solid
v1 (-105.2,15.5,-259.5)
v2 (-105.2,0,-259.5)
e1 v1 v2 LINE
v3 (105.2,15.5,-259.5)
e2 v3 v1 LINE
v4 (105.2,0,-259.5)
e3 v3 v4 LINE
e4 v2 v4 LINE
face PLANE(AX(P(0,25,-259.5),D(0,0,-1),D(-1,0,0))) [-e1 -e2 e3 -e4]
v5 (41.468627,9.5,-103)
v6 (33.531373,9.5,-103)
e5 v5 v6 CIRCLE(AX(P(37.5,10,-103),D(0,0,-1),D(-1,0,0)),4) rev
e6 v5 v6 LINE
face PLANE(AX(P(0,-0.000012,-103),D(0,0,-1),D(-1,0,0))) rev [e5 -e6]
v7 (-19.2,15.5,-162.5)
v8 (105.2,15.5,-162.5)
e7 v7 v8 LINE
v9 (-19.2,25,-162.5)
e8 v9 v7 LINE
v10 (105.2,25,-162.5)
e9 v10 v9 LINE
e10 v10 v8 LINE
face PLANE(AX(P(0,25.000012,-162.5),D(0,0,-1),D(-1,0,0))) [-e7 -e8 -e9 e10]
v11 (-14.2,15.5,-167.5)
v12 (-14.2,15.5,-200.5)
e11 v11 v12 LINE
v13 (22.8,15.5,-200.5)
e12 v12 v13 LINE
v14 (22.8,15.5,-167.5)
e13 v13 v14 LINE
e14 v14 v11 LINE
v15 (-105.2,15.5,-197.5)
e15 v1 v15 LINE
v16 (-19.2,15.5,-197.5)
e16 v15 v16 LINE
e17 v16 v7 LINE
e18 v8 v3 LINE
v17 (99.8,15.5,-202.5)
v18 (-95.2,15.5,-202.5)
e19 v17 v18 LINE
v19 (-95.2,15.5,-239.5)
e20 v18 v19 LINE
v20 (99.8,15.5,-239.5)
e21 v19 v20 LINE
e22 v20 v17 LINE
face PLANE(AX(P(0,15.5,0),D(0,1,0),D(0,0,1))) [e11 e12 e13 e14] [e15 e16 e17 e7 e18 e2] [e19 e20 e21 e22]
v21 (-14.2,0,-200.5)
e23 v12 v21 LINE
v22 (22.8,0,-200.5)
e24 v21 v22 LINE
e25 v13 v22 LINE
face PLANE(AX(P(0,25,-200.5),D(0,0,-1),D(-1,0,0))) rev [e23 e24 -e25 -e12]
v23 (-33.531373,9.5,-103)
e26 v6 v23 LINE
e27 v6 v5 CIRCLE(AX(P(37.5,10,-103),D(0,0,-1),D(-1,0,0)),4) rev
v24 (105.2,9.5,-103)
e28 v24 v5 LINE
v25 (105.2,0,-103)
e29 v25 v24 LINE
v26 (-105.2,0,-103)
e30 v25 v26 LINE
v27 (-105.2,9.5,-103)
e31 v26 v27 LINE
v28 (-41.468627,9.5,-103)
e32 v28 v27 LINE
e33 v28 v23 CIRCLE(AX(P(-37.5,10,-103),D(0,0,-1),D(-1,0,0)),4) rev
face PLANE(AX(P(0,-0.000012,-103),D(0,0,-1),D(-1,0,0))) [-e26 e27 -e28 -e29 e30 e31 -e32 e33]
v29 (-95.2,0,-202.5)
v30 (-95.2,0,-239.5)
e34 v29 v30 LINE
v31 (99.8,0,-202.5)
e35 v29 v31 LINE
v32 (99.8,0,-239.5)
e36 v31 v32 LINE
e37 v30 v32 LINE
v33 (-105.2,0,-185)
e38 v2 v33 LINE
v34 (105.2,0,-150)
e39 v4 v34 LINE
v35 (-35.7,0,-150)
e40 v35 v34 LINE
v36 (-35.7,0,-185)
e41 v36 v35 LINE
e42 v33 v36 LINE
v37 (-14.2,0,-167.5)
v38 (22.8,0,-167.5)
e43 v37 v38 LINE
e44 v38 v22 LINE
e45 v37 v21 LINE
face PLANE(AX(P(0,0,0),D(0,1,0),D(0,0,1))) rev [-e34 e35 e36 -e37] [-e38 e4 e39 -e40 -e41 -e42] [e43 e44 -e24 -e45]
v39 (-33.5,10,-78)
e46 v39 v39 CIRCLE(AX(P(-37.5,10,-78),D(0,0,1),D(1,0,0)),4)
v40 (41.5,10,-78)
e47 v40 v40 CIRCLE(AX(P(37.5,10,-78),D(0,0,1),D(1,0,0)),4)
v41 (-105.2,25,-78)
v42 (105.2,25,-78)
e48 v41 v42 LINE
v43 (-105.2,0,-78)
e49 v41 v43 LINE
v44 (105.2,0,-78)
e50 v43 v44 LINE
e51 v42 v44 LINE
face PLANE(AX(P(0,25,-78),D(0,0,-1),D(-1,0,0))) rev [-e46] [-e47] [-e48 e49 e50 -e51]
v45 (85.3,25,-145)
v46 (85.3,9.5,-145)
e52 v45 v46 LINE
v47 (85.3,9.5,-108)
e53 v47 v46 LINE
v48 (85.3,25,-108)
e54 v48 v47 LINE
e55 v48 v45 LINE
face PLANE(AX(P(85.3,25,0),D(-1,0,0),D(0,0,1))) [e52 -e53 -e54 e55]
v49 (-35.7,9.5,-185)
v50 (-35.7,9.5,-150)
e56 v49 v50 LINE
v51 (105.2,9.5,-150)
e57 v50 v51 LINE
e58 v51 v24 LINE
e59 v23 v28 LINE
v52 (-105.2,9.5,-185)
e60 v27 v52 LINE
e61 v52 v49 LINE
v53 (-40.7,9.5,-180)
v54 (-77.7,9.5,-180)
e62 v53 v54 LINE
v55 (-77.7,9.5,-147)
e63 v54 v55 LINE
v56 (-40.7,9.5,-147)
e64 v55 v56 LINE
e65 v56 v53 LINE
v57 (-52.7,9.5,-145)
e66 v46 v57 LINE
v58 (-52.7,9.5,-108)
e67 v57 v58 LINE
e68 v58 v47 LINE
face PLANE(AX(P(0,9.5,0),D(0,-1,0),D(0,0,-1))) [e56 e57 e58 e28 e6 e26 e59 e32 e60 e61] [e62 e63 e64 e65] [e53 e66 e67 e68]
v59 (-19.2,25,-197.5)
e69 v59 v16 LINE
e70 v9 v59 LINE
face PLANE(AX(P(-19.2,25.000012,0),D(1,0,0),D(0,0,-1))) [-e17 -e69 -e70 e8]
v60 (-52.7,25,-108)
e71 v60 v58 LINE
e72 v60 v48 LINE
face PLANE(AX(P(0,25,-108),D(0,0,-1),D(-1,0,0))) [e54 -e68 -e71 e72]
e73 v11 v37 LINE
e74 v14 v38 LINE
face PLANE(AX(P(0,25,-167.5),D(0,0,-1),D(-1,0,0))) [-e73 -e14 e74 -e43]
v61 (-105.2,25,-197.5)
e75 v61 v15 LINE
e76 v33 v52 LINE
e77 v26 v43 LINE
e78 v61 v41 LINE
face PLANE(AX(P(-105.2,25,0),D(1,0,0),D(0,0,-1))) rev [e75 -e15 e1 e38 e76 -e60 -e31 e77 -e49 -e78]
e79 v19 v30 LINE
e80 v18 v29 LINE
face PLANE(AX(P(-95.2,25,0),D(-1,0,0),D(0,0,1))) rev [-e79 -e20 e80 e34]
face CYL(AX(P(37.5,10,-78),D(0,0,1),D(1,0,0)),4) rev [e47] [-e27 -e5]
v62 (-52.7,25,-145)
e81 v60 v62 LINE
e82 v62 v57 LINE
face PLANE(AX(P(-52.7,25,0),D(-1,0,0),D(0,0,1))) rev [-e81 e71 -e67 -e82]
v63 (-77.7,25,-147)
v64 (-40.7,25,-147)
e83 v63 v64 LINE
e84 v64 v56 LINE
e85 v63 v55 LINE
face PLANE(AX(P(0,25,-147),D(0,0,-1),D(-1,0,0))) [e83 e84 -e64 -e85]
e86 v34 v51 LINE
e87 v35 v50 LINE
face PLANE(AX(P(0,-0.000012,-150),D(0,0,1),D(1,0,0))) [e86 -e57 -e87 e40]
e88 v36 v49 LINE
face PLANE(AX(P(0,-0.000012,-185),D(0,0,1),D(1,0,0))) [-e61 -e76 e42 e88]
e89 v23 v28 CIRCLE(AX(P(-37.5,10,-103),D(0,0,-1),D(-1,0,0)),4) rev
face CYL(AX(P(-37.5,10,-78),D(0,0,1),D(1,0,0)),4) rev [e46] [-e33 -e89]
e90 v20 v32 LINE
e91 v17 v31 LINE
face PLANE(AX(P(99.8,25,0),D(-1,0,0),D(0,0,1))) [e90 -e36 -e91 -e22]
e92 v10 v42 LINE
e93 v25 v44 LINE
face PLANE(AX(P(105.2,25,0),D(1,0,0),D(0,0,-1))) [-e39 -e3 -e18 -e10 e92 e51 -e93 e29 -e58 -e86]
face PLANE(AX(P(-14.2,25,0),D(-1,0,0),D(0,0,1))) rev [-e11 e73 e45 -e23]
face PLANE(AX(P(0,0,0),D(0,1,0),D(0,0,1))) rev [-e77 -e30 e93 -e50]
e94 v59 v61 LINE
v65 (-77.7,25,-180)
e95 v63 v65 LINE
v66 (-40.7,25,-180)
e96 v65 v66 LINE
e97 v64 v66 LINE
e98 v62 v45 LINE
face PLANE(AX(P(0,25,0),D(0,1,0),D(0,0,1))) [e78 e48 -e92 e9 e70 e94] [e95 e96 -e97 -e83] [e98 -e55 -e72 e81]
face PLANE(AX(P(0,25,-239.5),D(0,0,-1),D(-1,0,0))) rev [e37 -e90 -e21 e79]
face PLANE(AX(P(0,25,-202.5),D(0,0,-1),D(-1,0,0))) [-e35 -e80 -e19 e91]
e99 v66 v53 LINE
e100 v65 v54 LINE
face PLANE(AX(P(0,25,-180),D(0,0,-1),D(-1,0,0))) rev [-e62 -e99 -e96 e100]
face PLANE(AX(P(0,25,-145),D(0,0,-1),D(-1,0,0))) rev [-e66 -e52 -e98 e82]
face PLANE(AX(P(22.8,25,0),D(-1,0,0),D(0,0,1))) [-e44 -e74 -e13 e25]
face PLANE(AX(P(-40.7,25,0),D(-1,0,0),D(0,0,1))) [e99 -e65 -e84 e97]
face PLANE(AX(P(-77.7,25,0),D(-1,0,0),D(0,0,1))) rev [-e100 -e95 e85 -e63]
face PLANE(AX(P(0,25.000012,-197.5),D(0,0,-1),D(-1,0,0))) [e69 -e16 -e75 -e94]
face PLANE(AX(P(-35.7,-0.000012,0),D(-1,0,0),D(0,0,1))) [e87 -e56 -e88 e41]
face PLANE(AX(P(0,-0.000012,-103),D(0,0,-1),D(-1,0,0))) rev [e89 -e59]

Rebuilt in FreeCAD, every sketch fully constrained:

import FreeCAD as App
import Part
import Sketcher
from FreeCAD import Vector
Q = App.Units.Quantity

doc = App.newDocument("Part")
body = doc.addObject("PartDesign::Body", "Body")

# Sketch on XZ plane
sketch1 = body.newObject("Sketcher::SketchObject", "Sketch")
sketch1.AttachmentSupport = (doc.getObject("XZ_Plane"), [""])
sketch1.MapMode = "FlatFace"
sketch1.addGeometry([
    Part.LineSegment(Vector(-105, -260, 0), Vector(-105, -78, 0)),  # 0
    Part.LineSegment(Vector(-105, -78, 0), Vector(105, -78, 0)),  # 1
    Part.LineSegment(Vector(105, -78, 0), Vector(105, -260, 0)),  # 2
    Part.LineSegment(Vector(105, -260, 0), Vector(-105, -260, 0)),  # 3
    Part.LineSegment(Vector(-41, -147, 0), Vector(-78, -147, 0)),  # 4
    Part.LineSegment(Vector(-78, -147, 0), Vector(-78, -180, 0)),  # 5
    Part.LineSegment(Vector(-78, -180, 0), Vector(-41, -180, 0)),  # 6
    Part.LineSegment(Vector(-41, -180, 0), Vector(-41, -147, 0)),  # 7
    Part.LineSegment(Vector(85, -108, 0), Vector(-53, -108, 0)),  # 8
    Part.LineSegment(Vector(-53, -108, 0), Vector(-53, -145, 0)),  # 9
    Part.LineSegment(Vector(-53, -145, 0), Vector(85, -145, 0)),  # 10
    Part.LineSegment(Vector(85, -145, 0), Vector(85, -108, 0)),  # 11
    Part.LineSegment(Vector(23, -168, 0), Vector(-14, -168, 0)),  # 12
    Part.LineSegment(Vector(-14, -168, 0), Vector(-14, -200, 0)),  # 13
    Part.LineSegment(Vector(-14, -200, 0), Vector(23, -200, 0)),  # 14
    Part.LineSegment(Vector(23, -200, 0), Vector(23, -168, 0)),  # 15
    Part.LineSegment(Vector(100, -202, 0), Vector(-95, -202, 0)),  # 16
    Part.LineSegment(Vector(-95, -202, 0), Vector(-95, -240, 0)),  # 17
    Part.LineSegment(Vector(-95, -240, 0), Vector(100, -240, 0)),  # 18
    Part.LineSegment(Vector(100, -240, 0), Vector(100, -202, 0)),  # 19
], False)
sketch1.addConstraint([
    Sketcher.Constraint("Coincident", 0, 2, 1, 1),
    Sketcher.Constraint("Coincident", 1, 2, 2, 1),
    Sketcher.Constraint("Coincident", 2, 2, 3, 1),
    Sketcher.Constraint("Coincident", 3, 2, 0, 1),
    Sketcher.Constraint("Coincident", 4, 2, 5, 1),
    Sketcher.Constraint("Coincident", 5, 2, 6, 1),
    Sketcher.Constraint("Coincident", 6, 2, 7, 1),
    Sketcher.Constraint("Coincident", 7, 2, 4, 1),
    Sketcher.Constraint("Coincident", 8, 2, 9, 1),
    Sketcher.Constraint("Coincident", 9, 2, 10, 1),
    Sketcher.Constraint("Coincident", 10, 2, 11, 1),
    Sketcher.Constraint("Coincident", 11, 2, 8, 1),
    Sketcher.Constraint("Coincident", 12, 2, 13, 1),
    Sketcher.Constraint("Coincident", 13, 2, 14, 1),
    Sketcher.Constraint("Coincident", 14, 2, 15, 1),
    Sketcher.Constraint("Coincident", 15, 2, 12, 1),
    Sketcher.Constraint("Coincident", 16, 2, 17, 1),
    Sketcher.Constraint("Coincident", 17, 2, 18, 1),
    Sketcher.Constraint("Coincident", 18, 2, 19, 1),
    Sketcher.Constraint("Coincident", 19, 2, 16, 1),
    Sketcher.Constraint("Vertical", 0),
    Sketcher.Constraint("Horizontal", 1),
    Sketcher.Constraint("Vertical", 2),
    Sketcher.Constraint("Horizontal", 3),
    Sketcher.Constraint("Horizontal", 4),
    Sketcher.Constraint("Vertical", 5),
    Sketcher.Constraint("Horizontal", 6),
    Sketcher.Constraint("Vertical", 7),
    Sketcher.Constraint("Horizontal", 8),
    Sketcher.Constraint("Vertical", 9),
    Sketcher.Constraint("Horizontal", 10),
    Sketcher.Constraint("Vertical", 11),
    Sketcher.Constraint("Horizontal", 12),
    Sketcher.Constraint("Vertical", 13),
    Sketcher.Constraint("Horizontal", 14),
    Sketcher.Constraint("Vertical", 15),
    Sketcher.Constraint("Horizontal", 16),
    Sketcher.Constraint("Vertical", 17),
    Sketcher.Constraint("Horizontal", 18),
    Sketcher.Constraint("Vertical", 19),
    Sketcher.Constraint("Equal", 6, 12),
    Sketcher.Constraint("Equal", 14, 9),
    Sketcher.Constraint("Equal", 7, 13),
    Sketcher.Constraint("Equal", 11, 17),
    Sketcher.Constraint("DistanceX", 4, 2, 4, 1, Q("37 mm")),
    Sketcher.Constraint("DistanceX", 8, 2, 8, 1, Q("138 mm")),
    Sketcher.Constraint("DistanceX", 16, 2, 16, 1, Q("195 mm")),
    Sketcher.Constraint("DistanceY", 5, 2, 5, 1, Q("33 mm")),
    Sketcher.Constraint("DistanceX", 1, 1, 1, 2, Q("210.4 mm")),
    Sketcher.Constraint("DistanceY", 0, 1, 0, 2, Q("181.5 mm")),
    Sketcher.Constraint("DistanceY", 0, 2, -1, 1, Q("78 mm")),
    Sketcher.Constraint("DistanceY", 4, 2, -1, 1, Q("147 mm")),
    Sketcher.Constraint("DistanceY", 8, 2, -1, 1, Q("108 mm")),
    Sketcher.Constraint("DistanceX", 8, 2, 7, 2, Q("12 mm")),
    Sketcher.Constraint("DistanceX", 3, 2, 16, 2, Q("10 mm")),
    Sketcher.Constraint("DistanceY", 3, 2, 16, 2, Q("57 mm")),
    Sketcher.Constraint("DistanceX", 17, 2, 13, 2, Q("81 mm")),
    Sketcher.Constraint("DistanceY", 17, 2, 13, 2, Q("39 mm")),
    Sketcher.Constraint("DistanceX", 0, 2, -1, 1, Q("105.2 mm")),
    Sketcher.Constraint("DistanceX", 4, 2, -1, 1, Q("77.7 mm")),
])
pad1 = body.newObject("PartDesign::Pad", "Pad")
pad1.Profile = sketch1
pad1.Length = 25
pad1.Reversed = True

# Sketch on XZ plane
sketch2 = body.newObject("Sketcher::SketchObject", "Sketch001")
sketch2.AttachmentSupport = (doc.getObject("XZ_Plane"), [""])
sketch2.MapMode = "FlatFace"
sketch2.AttachmentOffset = App.Placement(Vector(0, 0, -25), App.Rotation())
sketch2.addGeometry([
    Part.LineSegment(Vector(-105, -260, 0), Vector(-105, -198, 0)),  # 0
    Part.LineSegment(Vector(-105, -198, 0), Vector(-19, -198, 0)),  # 1
    Part.LineSegment(Vector(-19, -198, 0), Vector(-19, -162, 0)),  # 2
    Part.LineSegment(Vector(-19, -162, 0), Vector(105, -162, 0)),  # 3
    Part.LineSegment(Vector(105, -162, 0), Vector(105, -260, 0)),  # 4
    Part.LineSegment(Vector(105, -260, 0), Vector(-105, -260, 0)),  # 5
    Part.LineSegment(Vector(23, -168, 0), Vector(-14, -168, 0)),  # 6
    Part.LineSegment(Vector(-14, -168, 0), Vector(-14, -200, 0)),  # 7
    Part.LineSegment(Vector(-14, -200, 0), Vector(23, -200, 0)),  # 8
    Part.LineSegment(Vector(23, -200, 0), Vector(23, -168, 0)),  # 9
    Part.LineSegment(Vector(100, -202, 0), Vector(-95, -202, 0)),  # 10
    Part.LineSegment(Vector(-95, -202, 0), Vector(-95, -240, 0)),  # 11
    Part.LineSegment(Vector(-95, -240, 0), Vector(100, -240, 0)),  # 12
    Part.LineSegment(Vector(100, -240, 0), Vector(100, -202, 0)),  # 13
], False)
sketch2.addConstraint([
    Sketcher.Constraint("Coincident", 0, 2, 1, 1),
    Sketcher.Constraint("Coincident", 1, 2, 2, 1),
    Sketcher.Constraint("Coincident", 2, 2, 3, 1),
    Sketcher.Constraint("Coincident", 3, 2, 4, 1),
    Sketcher.Constraint("Coincident", 4, 2, 5, 1),
    Sketcher.Constraint("Coincident", 5, 2, 0, 1),
    Sketcher.Constraint("Coincident", 6, 2, 7, 1),
    Sketcher.Constraint("Coincident", 7, 2, 8, 1),
    Sketcher.Constraint("Coincident", 8, 2, 9, 1),
    Sketcher.Constraint("Coincident", 9, 2, 6, 1),
    Sketcher.Constraint("Coincident", 10, 2, 11, 1),
    Sketcher.Constraint("Coincident", 11, 2, 12, 1),
    Sketcher.Constraint("Coincident", 12, 2, 13, 1),
    Sketcher.Constraint("Coincident", 13, 2, 10, 1),
    Sketcher.Constraint("Vertical", 0),
    Sketcher.Constraint("Horizontal", 1),
    Sketcher.Constraint("Vertical", 2),
    Sketcher.Constraint("Horizontal", 3),
    Sketcher.Constraint("Vertical", 4),
    Sketcher.Constraint("Horizontal", 5),
    Sketcher.Constraint("Horizontal", 6),
    Sketcher.Constraint("Vertical", 7),
    Sketcher.Constraint("Horizontal", 8),
    Sketcher.Constraint("Vertical", 9),
    Sketcher.Constraint("Horizontal", 10),
    Sketcher.Constraint("Vertical", 11),
    Sketcher.Constraint("Horizontal", 12),
    Sketcher.Constraint("Vertical", 13),
    Sketcher.Constraint("Equal", 8, 11),
    Sketcher.Constraint("DistanceX", 1, 1, 1, 2, Q("86 mm")),
    Sketcher.Constraint("DistanceX", 6, 2, 6, 1, Q("37 mm")),
    Sketcher.Constraint("DistanceX", 10, 2, 10, 1, Q("195 mm")),
    Sketcher.Constraint("DistanceY", 0, 1, 0, 2, Q("62 mm")),
    Sketcher.Constraint("DistanceY", 2, 1, 2, 2, Q("35 mm")),
    Sketcher.Constraint("DistanceY", 7, 2, 7, 1, Q("33 mm")),
    Sketcher.Constraint("DistanceX", 3, 1, 3, 2, Q("124.4 mm")),
    Sketcher.Constraint("DistanceX", 2, 2, 6, 2, Q("5 mm")),
    Sketcher.Constraint("DistanceY", 6, 2, 2, 2, Q("5 mm")),
    Sketcher.Constraint("DistanceX", 0, 2, 10, 2, Q("10 mm")),
    Sketcher.Constraint("DistanceY", 10, 2, 0, 2, Q("5 mm")),
    Sketcher.Constraint("DistanceX", 0, 2, -1, 1, Q("105.2 mm")),
    Sketcher.Constraint("DistanceY", 0, 2, -1, 1, Q("197.5 mm")),
])
pocket1 = body.newObject("PartDesign::Pocket", "Pocket")
pocket1.Profile = sketch2
pocket1.Type = "TwoLengths"
pocket1.Length = 282.126822
pocket1.Length2 = 9.5

# Sketch on XZ plane
sketch3 = body.newObject("Sketcher::SketchObject", "Sketch002")
sketch3.AttachmentSupport = (doc.getObject("XZ_Plane"), [""])
sketch3.MapMode = "FlatFace"
sketch3.addGeometry([
    Part.LineSegment(Vector(-105, -103, 0), Vector(-105, -185, 0)),  # 0
    Part.LineSegment(Vector(-105, -185, 0), Vector(-36, -185, 0)),  # 1
    Part.LineSegment(Vector(-36, -185, 0), Vector(-36, -150, 0)),  # 2
    Part.LineSegment(Vector(-36, -150, 0), Vector(105, -150, 0)),  # 3
    Part.LineSegment(Vector(105, -150, 0), Vector(105, -103, 0)),  # 4
    Part.LineSegment(Vector(105, -103, 0), Vector(-105, -103, 0)),  # 5
    Part.LineSegment(Vector(-41, -180, 0), Vector(-78, -180, 0)),  # 6
    Part.LineSegment(Vector(-78, -180, 0), Vector(-78, -147, 0)),  # 7
    Part.LineSegment(Vector(-78, -147, 0), Vector(-41, -147, 0)),  # 8
    Part.LineSegment(Vector(-41, -147, 0), Vector(-41, -180, 0)),  # 9
    Part.LineSegment(Vector(85, -145, 0), Vector(-53, -145, 0)),  # 10
    Part.LineSegment(Vector(-53, -145, 0), Vector(-53, -108, 0)),  # 11
    Part.LineSegment(Vector(-53, -108, 0), Vector(85, -108, 0)),  # 12
    Part.LineSegment(Vector(85, -108, 0), Vector(85, -145, 0)),  # 13
], False)
sketch3.addConstraint([
    Sketcher.Constraint("Coincident", 0, 2, 1, 1),
    Sketcher.Constraint("Coincident", 1, 2, 2, 1),
    Sketcher.Constraint("Coincident", 2, 2, 3, 1),
    Sketcher.Constraint("Coincident", 3, 2, 4, 1),
    Sketcher.Constraint("Coincident", 4, 2, 5, 1),
    Sketcher.Constraint("Coincident", 5, 2, 0, 1),
    Sketcher.Constraint("Coincident", 6, 2, 7, 1),
    Sketcher.Constraint("Coincident", 7, 2, 8, 1),
    Sketcher.Constraint("Coincident", 8, 2, 9, 1),
    Sketcher.Constraint("Coincident", 9, 2, 6, 1),
    Sketcher.Constraint("Coincident", 10, 2, 11, 1),
    Sketcher.Constraint("Coincident", 11, 2, 12, 1),
    Sketcher.Constraint("Coincident", 12, 2, 13, 1),
    Sketcher.Constraint("Coincident", 13, 2, 10, 1),
    Sketcher.Constraint("Vertical", 0),
    Sketcher.Constraint("Horizontal", 1),
    Sketcher.Constraint("Vertical", 2),
    Sketcher.Constraint("Horizontal", 3),
    Sketcher.Constraint("Vertical", 4),
    Sketcher.Constraint("Horizontal", 5),
    Sketcher.Constraint("Horizontal", 6),
    Sketcher.Constraint("Vertical", 7),
    Sketcher.Constraint("Horizontal", 8),
    Sketcher.Constraint("Vertical", 9),
    Sketcher.Constraint("Horizontal", 10),
    Sketcher.Constraint("Vertical", 11),
    Sketcher.Constraint("Horizontal", 12),
    Sketcher.Constraint("Vertical", 13),
    Sketcher.Constraint("Equal", 8, 11),
    Sketcher.Constraint("DistanceX", 6, 2, 6, 1, Q("37 mm")),
    Sketcher.Constraint("DistanceX", 10, 2, 10, 1, Q("138 mm")),
    Sketcher.Constraint("DistanceY", 0, 2, 0, 1, Q("82 mm")),
    Sketcher.Constraint("DistanceY", 2, 1, 2, 2, Q("35 mm")),
    Sketcher.Constraint("DistanceY", 7, 1, 7, 2, Q("33 mm")),
    Sketcher.Constraint("DistanceX", 1, 1, 1, 2, Q("69.5 mm")),
    Sketcher.Constraint("DistanceX", 3, 1, 3, 2, Q("140.9 mm")),
    Sketcher.Constraint("DistanceY", 0, 2, -1, 1, Q("185 mm")),
    Sketcher.Constraint("DistanceY", 6, 2, -1, 1, Q("180 mm")),
    Sketcher.Constraint("DistanceY", 10, 2, -1, 1, Q("145 mm")),
    Sketcher.Constraint("DistanceX", 6, 2, 1, 2, Q("42 mm")),
    Sketcher.Constraint("DistanceX", 10, 2, 8, 2, Q("12 mm")),
    Sketcher.Constraint("DistanceX", 0, 2, -1, 1, Q("105.2 mm")),
])
pocket2 = body.newObject("PartDesign::Pocket", "Pocket001")
pocket2.Profile = sketch3
pocket2.Type = "TwoLengths"
pocket2.Length = 282.126822
pocket2.Length2 = 9.5
pocket2.Reversed = True

# Sketch on XY plane
sketch4 = body.newObject("Sketcher::SketchObject", "Sketch003")
sketch4.AttachmentSupport = (doc.getObject("XY_Plane"), [""])
sketch4.MapMode = "FlatFace"
sketch4.AttachmentOffset = App.Placement(Vector(0, 0, -78), App.Rotation())
sketch4.addGeometry([
    Part.Circle(Vector(-37.5, 10, 0), Vector(0, 0, 1), 4),
    Part.Circle(Vector(37.5, 10, 0), Vector(0, 0, 1), 4),
], False)
sketch4.addConstraint([
    Sketcher.Constraint("Equal", 0, 1),
    Sketcher.Constraint("Symmetric", 0, 3, 1, 3, -2),
    Sketcher.Constraint("Diameter", 0, Q("8 mm")),
    Sketcher.Constraint("DistanceY", -1, 1, 0, 3, Q("10 mm")),
    Sketcher.Constraint("DistanceX", 0, 3, 1, 3, Q("75 mm")),
])
doc.recompute()
hole = body.newObject("PartDesign::Hole", "Hole")
hole.Profile = sketch4
hole.ThreadType = "None"
hole.Diameter = 8
hole.DepthType = "Dimension"
hole.Depth = 25
hole.DrillPoint = "Flat"

doc.recompute()
